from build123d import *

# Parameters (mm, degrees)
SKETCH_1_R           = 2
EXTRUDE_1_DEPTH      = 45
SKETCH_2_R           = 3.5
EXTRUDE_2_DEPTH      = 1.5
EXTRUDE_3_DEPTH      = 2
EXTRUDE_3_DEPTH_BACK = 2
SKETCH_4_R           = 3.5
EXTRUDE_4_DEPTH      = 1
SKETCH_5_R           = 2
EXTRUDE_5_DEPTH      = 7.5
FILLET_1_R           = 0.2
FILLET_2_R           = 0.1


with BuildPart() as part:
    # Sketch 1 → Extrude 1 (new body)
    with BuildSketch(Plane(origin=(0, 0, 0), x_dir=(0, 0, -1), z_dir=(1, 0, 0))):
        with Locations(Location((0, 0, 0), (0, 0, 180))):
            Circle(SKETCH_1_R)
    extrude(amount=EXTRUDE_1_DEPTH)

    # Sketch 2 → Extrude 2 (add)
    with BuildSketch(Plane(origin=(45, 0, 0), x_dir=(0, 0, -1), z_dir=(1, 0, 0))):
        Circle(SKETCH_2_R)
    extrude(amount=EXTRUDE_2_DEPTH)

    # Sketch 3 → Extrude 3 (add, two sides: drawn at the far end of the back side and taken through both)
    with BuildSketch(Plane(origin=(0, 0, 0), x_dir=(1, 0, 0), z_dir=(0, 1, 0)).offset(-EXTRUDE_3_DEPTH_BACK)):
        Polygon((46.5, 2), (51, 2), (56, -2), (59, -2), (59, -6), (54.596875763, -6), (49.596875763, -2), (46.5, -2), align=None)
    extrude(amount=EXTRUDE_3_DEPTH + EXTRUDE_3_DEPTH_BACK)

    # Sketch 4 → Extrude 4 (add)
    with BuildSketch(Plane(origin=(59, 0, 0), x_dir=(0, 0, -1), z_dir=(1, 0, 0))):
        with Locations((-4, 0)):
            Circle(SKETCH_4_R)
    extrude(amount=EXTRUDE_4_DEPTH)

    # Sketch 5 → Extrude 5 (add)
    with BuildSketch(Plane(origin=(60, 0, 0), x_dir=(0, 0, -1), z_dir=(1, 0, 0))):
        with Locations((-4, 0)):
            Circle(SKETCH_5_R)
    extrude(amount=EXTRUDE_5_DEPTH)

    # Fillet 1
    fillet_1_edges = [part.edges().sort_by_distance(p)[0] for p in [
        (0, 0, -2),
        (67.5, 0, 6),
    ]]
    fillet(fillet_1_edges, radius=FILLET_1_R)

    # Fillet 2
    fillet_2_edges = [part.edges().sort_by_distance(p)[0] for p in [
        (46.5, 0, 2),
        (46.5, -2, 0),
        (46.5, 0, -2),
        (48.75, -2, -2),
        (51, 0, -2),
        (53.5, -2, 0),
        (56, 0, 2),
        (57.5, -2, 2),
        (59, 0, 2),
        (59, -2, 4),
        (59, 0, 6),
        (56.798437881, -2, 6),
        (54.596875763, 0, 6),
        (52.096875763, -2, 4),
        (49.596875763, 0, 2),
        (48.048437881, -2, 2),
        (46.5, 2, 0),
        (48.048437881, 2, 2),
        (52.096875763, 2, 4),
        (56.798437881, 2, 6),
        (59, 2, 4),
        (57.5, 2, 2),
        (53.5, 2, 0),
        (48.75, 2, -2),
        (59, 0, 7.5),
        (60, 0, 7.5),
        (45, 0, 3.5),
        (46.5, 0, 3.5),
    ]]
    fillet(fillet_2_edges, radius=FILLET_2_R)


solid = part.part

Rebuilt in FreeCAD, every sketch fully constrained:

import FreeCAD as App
import Part
import Sketcher

V = App.Vector
Q = App.Units.Quantity


def edges_at(feature, points):
    """Names of the edges that pass closest to the given points."""
    edges = feature.Shape.Edges
    near = lambda p: min(range(len(edges)), key=lambda i: edges[i].distToShape(Part.Vertex(*p))[0])
    return sorted({f"Edge{near(p) + 1}" for p in points})


def add_polygon(sketch, points):
    """Adds a closed chain of lines whose ends are joined by coincident constraints."""
    first, n = sketch.GeometryCount, len(points)
    for a, b in zip(points, points[1:] + points[:1]):
        sketch.addGeometry(Part.LineSegment(App.Vector(*a, 0), App.Vector(*b, 0)), False)
    for i in range(n):
        sketch.addConstraint(Sketcher.Constraint("Coincident", first + i, 2, first + (i + 1) % n, 1))

doc = App.newDocument("Part")
params = doc.addObject("Spreadsheet::Sheet", "Params")
for row, (alias, value) in enumerate([
    ("sketch1_diameter", "4 mm"),
    ("pad1_length", "45 mm"),
    ("sketch2_diameter", "7 mm"),
    ("pad2_length", "1.5 mm"),
    ("sketch3_width", "3 mm"),
    ("sketch3_height", "4 mm"),
    ("sketch3_width2", "4.5 mm"),
    ("pad3_length", "2 mm"),
    ("pad3_length2", "2 mm"),
    ("sketch4_diameter", "7 mm"),
    ("pad4_length", "1 mm"),
    ("sketch5_diameter", "4 mm"),
    ("pad5_length", "7.5 mm"),
    ("fillet_radius", "0.2 mm"),
    ("fillet2_radius", "0.1 mm"),
], start=1):
    params.set(f"A{row}", alias)
    params.set(f"B{row}", "=" + value)
    params.setAlias(f"B{row}", alias)

body = doc.addObject("PartDesign::Body", "Body")

sketch1 = body.newObject("Sketcher::SketchObject", "Sketch")
sketch1.AttachmentSupport = (doc.getObject("YZ_Plane"), [""])
sketch1.MapMode = "FlatFace"
sketch1.addGeometry(Part.Circle(V(0, 0, 0), V(0, 0, 1), 2), False)
sketch1.addConstraint(Sketcher.Constraint("Coincident", 0, 3, -1, 1))
sketch1.addConstraint(Sketcher.Constraint("Diameter", 0, Q("4 mm")))
sketch1.setExpression("Constraints[1]", "Params.sketch1_diameter")
pad1 = body.newObject("PartDesign::Pad", "Pad")
pad1.Profile = sketch1
pad1.setExpression("Length", "Params.pad1_length")

sketch2 = body.newObject("Sketcher::SketchObject", "Sketch001")
sketch2.AttachmentSupport = (doc.getObject("YZ_Plane"), [""])
sketch2.MapMode = "FlatFace"
sketch2.AttachmentOffset = App.Placement(V(0, 0, 45), App.Rotation())
sketch2.addGeometry(Part.Circle(V(0, 0, 0), V(0, 0, 1), 3.5), False)
sketch2.addConstraint(Sketcher.Constraint("Coincident", 0, 3, -1, 1))
sketch2.addConstraint(Sketcher.Constraint("Diameter", 0, Q("7 mm")))
sketch2.setExpression("Constraints[1]", "Params.sketch2_diameter")
pad2 = body.newObject("PartDesign::Pad", "Pad001")
pad2.Profile = sketch2
pad2.setExpression("Length", "Params.pad2_length")

sketch3 = body.newObject("Sketcher::SketchObject", "Sketch002")
sketch3.AttachmentSupport = (doc.getObject("XZ_Plane"), [""])
sketch3.MapMode = "FlatFace"
add_polygon(sketch3, [(51, -2), (46.5, -2), (46.5, 2), (49.596876, 2), (54.596876, 6), (59, 6), (59, 2), (56, 2)])
sketch3.addConstraint(Sketcher.Constraint("Horizontal", 0))
sketch3.addConstraint(Sketcher.Constraint("Vertical", 1))
sketch3.addConstraint(Sketcher.Constraint("Horizontal", 2))
sketch3.addConstraint(Sketcher.Constraint("Horizontal", 4))
sketch3.addConstraint(Sketcher.Constraint("Vertical", 5))
sketch3.addConstraint(Sketcher.Constraint("Horizontal", 6))
sketch3.addConstraint(Sketcher.Constraint("Parallel", 3, 7))
sketch3.addConstraint(Sketcher.Constraint("Horizontal", 2, 2, 5, 2))
sketch3.addConstraint(Sketcher.Constraint("Equal", 1, 5))
sketch3.addConstraint(Sketcher.Constraint("DistanceX", 6, 2, 6, 1, Q("3 mm")))
sketch3.addConstraint(Sketcher.Constraint("DistanceY", 1, 1, 1, 2, Q("4 mm")))
sketch3.addConstraint(Sketcher.Constraint("DistanceX", 0, 2, 0, 1, Q("4.5 mm")))
sketch3.addConstraint(Sketcher.Constraint("DistanceY", 0, 2, -1, 1, Q("2 mm")))
sketch3.addConstraint(Sketcher.Constraint("DistanceX", -1, 1, 4, 2, Q("59 mm")))
sketch3.addConstraint(Sketcher.Constraint("DistanceX", -1, 1, 7, 2, Q("51 mm")))
sketch3.addConstraint(Sketcher.Constraint("DistanceX", 2, 1, 2, 2, Q("3.096876 mm")))
sketch3.setExpression("Constraints[17]", "Params.sketch3_width")
sketch3.setExpression("Constraints[18]", "Params.sketch3_height")
sketch3.setExpression("Constraints[19]", "Params.sketch3_width2")
pad3 = body.newObject("PartDesign::Pad", "Pad002")
pad3.Profile = sketch3
pad3.Type = "TwoLengths"
pad3.setExpression("Length", "Params.pad3_length")
pad3.setExpression("Length2", "Params.pad3_length2")
pad3.Reversed = True

sketch4 = body.newObject("Sketcher::SketchObject", "Sketch003")
sketch4.AttachmentSupport = (doc.getObject("YZ_Plane"), [""])
sketch4.MapMode = "FlatFace"
sketch4.AttachmentOffset = App.Placement(V(0, 0, 59), App.Rotation())
sketch4.addGeometry(Part.Circle(V(0, 4, 0), V(0, 0, 1), 3.5), False)
sketch4.addConstraint(Sketcher.Constraint("PointOnObject", 0, 3, -2))
sketch4.addConstraint(Sketcher.Constraint("Diameter", 0, Q("7 mm")))
sketch4.addConstraint(Sketcher.Constraint("DistanceY", -1, 1, 0, 3, Q("4 mm")))
sketch4.setExpression("Constraints[1]", "Params.sketch4_diameter")
pad4 = body.newObject("PartDesign::Pad", "Pad003")
pad4.Profile = sketch4
pad4.setExpression("Length", "Params.pad4_length")

sketch5 = body.newObject("Sketcher::SketchObject", "Sketch004")
sketch5.AttachmentSupport = (doc.getObject("YZ_Plane"), [""])
sketch5.MapMode = "FlatFace"
sketch5.AttachmentOffset = App.Placement(V(0, 0, 60), App.Rotation())
sketch5.addGeometry(Part.Circle(V(0, 4, 0), V(0, 0, 1), 2), False)
sketch5.addConstraint(Sketcher.Constraint("PointOnObject", 0, 3, -2))
sketch5.addConstraint(Sketcher.Constraint("Diameter", 0, Q("4 mm")))
sketch5.addConstraint(Sketcher.Constraint("DistanceY", -1, 1, 0, 3, Q("4 mm")))
sketch5.setExpression("Constraints[1]", "Params.sketch5_diameter")
pad5 = body.newObject("PartDesign::Pad", "Pad004")
pad5.Profile = sketch5
pad5.setExpression("Length", "Params.pad5_length")
doc.recompute()

fillet = body.newObject("PartDesign::Fillet", "Fillet")
fillet.Base = (pad5, edges_at(pad5, [(0, 0, -2), (67.5, 0, 6)]))
fillet.setExpression("Radius", "Params.fillet_radius")
doc.recompute()

fillet2 = body.newObject("PartDesign::Fillet", "Fillet001")
fillet2.Base = (fillet, edges_at(fillet, [
    (46.5, 0, 2),
    (46.5, -2, 0),
    (46.5, 0, -2),
    (48.75, -2, -2),
    (51, 0, -2),
    (53.5, -2, 0),
    (56, 0, 2),
    (57.5, -2, 2),
    (59, 0, 2),
    (59, -2, 4),
    (59, 0, 6),
    (56.798, -2, 6),
    (54.597, 0, 6),
    (52.097, -2, 4),
    (49.597, 0, 2),
    (48.048, -2, 2),
    (46.5, 2, 0),
    (48.048, 2, 2),
    (52.097, 2, 4),
    (56.798, 2, 6),
    (59, 2, 4),
    (57.5, 2, 2),
    (53.5, 2, 0),
    (48.75, 2, -2),
    (59, 0, 7.5),
    (60, 0, 7.5),
    (45, 0, 3.5),
    (46.5, 0, 3.5),
]))
fillet2.setExpression("Radius", "Params.fillet2_radius")

doc.recompute()
